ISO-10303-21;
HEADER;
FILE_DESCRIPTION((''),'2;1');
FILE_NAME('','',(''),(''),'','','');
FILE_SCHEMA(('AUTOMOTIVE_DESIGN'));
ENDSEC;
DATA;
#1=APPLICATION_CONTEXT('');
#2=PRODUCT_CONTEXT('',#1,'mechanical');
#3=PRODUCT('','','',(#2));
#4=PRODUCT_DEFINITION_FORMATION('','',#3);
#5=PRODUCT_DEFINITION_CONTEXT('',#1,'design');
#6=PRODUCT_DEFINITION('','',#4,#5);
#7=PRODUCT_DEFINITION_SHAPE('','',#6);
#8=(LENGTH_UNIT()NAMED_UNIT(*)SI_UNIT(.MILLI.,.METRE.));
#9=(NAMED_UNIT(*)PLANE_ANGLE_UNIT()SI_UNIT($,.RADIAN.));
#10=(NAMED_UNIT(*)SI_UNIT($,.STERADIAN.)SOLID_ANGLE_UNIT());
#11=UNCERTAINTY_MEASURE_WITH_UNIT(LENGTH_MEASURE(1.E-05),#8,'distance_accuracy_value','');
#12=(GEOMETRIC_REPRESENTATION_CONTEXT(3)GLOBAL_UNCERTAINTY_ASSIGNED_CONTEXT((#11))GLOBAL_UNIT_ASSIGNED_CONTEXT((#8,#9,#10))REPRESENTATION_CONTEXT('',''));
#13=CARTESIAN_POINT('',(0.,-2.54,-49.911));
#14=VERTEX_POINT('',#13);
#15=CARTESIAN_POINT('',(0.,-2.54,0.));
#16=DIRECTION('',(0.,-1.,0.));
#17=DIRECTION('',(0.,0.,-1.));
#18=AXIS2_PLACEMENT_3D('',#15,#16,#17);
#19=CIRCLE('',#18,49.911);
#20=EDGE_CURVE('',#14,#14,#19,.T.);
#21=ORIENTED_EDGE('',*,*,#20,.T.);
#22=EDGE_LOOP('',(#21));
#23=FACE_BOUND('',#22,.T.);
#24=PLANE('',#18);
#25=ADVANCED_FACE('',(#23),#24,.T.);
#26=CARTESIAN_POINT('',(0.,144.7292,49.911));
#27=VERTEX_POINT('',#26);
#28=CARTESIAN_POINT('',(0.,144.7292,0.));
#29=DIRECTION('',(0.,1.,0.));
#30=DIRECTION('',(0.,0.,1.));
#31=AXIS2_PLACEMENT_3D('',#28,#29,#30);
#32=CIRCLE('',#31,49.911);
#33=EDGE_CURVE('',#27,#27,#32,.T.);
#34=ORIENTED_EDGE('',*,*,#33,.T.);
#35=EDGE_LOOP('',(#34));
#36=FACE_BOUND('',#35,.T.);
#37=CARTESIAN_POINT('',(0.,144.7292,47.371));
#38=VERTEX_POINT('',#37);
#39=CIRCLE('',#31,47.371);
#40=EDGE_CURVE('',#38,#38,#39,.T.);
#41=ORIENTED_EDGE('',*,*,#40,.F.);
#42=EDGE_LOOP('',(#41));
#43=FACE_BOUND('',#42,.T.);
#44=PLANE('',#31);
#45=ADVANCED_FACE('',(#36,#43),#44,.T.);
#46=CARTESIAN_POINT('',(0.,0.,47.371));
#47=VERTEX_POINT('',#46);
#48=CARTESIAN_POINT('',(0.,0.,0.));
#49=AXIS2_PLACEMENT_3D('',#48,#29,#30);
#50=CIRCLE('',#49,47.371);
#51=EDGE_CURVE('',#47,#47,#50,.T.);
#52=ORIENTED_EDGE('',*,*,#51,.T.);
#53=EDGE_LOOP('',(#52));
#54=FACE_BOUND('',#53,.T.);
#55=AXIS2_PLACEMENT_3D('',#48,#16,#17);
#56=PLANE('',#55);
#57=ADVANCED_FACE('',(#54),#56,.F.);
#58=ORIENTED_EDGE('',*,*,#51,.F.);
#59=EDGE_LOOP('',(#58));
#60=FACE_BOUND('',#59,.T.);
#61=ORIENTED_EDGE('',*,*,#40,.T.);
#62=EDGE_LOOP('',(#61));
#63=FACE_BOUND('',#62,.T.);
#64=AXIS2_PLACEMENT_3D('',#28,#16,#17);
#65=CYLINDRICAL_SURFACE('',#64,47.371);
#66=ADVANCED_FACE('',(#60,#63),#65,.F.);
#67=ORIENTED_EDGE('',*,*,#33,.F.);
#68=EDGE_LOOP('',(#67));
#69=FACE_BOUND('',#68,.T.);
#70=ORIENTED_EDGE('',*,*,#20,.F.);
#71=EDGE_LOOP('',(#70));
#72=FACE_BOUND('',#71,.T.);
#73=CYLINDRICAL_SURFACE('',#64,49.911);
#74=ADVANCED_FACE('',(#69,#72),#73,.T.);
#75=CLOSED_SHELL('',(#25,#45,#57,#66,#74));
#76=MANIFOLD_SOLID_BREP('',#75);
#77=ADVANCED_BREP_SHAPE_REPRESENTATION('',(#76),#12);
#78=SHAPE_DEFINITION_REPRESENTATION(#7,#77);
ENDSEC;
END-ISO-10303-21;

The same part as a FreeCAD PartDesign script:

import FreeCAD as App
import Part
import Sketcher
Q = App.Units.Quantity

doc = App.newDocument("Part")
body = doc.addObject("PartDesign::Body", "Body")

sketch1 = body.newObject("Sketcher::SketchObject", "Sketch")
sketch1.AttachmentSupport = (doc.getObject("XZ_Plane"), [""])
sketch1.MapMode = "FlatFace"
sketch1.addGeometry([
    Part.Circle(App.Vector(0, 0, 0), App.Vector(0, 0, 1), 50),
    Part.Circle(App.Vector(0, 0, 0), App.Vector(0, 0, 1), 47),
], False)
sketch1.addConstraint([
    Sketcher.Constraint("Coincident", 0, 3, -1, 1),
    Sketcher.Constraint("Coincident", 1, 3, -1, 1),
    Sketcher.Constraint("Diameter", 0, Q("3.93 in")),
    Sketcher.Constraint("Diameter", 1, Q("3.73 in")),
])
pad1 = body.newObject("PartDesign::Pad", "Pad")
pad1.Profile = sketch1
pad1.Length = Q("5.698 in")
pad1.Reversed = True

sketch2 = body.newObject("Sketcher::SketchObject", "Sketch001")
sketch2.AttachmentSupport = (doc.getObject("XZ_Plane"), [""])
sketch2.MapMode = "FlatFace"
sketch2.AttachmentOffset = App.Placement(App.Vector(0, 0, 0.1 * 25.4), App.Rotation())
sketch2.addGeometry(Part.Circle(App.Vector(0, 0, 0), App.Vector(0, 0, 1), 50), False)
sketch2.addConstraint([
    Sketcher.Constraint("Coincident", 0, 3, -1, 1),
    Sketcher.Constraint("Diameter", 0, Q("3.93 in")),
])
pad2 = body.newObject("PartDesign::Pad", "Pad001")
pad2.Profile = sketch2
pad2.Length = Q("0.1 in")
pad2.Reversed = True

doc.recompute()
